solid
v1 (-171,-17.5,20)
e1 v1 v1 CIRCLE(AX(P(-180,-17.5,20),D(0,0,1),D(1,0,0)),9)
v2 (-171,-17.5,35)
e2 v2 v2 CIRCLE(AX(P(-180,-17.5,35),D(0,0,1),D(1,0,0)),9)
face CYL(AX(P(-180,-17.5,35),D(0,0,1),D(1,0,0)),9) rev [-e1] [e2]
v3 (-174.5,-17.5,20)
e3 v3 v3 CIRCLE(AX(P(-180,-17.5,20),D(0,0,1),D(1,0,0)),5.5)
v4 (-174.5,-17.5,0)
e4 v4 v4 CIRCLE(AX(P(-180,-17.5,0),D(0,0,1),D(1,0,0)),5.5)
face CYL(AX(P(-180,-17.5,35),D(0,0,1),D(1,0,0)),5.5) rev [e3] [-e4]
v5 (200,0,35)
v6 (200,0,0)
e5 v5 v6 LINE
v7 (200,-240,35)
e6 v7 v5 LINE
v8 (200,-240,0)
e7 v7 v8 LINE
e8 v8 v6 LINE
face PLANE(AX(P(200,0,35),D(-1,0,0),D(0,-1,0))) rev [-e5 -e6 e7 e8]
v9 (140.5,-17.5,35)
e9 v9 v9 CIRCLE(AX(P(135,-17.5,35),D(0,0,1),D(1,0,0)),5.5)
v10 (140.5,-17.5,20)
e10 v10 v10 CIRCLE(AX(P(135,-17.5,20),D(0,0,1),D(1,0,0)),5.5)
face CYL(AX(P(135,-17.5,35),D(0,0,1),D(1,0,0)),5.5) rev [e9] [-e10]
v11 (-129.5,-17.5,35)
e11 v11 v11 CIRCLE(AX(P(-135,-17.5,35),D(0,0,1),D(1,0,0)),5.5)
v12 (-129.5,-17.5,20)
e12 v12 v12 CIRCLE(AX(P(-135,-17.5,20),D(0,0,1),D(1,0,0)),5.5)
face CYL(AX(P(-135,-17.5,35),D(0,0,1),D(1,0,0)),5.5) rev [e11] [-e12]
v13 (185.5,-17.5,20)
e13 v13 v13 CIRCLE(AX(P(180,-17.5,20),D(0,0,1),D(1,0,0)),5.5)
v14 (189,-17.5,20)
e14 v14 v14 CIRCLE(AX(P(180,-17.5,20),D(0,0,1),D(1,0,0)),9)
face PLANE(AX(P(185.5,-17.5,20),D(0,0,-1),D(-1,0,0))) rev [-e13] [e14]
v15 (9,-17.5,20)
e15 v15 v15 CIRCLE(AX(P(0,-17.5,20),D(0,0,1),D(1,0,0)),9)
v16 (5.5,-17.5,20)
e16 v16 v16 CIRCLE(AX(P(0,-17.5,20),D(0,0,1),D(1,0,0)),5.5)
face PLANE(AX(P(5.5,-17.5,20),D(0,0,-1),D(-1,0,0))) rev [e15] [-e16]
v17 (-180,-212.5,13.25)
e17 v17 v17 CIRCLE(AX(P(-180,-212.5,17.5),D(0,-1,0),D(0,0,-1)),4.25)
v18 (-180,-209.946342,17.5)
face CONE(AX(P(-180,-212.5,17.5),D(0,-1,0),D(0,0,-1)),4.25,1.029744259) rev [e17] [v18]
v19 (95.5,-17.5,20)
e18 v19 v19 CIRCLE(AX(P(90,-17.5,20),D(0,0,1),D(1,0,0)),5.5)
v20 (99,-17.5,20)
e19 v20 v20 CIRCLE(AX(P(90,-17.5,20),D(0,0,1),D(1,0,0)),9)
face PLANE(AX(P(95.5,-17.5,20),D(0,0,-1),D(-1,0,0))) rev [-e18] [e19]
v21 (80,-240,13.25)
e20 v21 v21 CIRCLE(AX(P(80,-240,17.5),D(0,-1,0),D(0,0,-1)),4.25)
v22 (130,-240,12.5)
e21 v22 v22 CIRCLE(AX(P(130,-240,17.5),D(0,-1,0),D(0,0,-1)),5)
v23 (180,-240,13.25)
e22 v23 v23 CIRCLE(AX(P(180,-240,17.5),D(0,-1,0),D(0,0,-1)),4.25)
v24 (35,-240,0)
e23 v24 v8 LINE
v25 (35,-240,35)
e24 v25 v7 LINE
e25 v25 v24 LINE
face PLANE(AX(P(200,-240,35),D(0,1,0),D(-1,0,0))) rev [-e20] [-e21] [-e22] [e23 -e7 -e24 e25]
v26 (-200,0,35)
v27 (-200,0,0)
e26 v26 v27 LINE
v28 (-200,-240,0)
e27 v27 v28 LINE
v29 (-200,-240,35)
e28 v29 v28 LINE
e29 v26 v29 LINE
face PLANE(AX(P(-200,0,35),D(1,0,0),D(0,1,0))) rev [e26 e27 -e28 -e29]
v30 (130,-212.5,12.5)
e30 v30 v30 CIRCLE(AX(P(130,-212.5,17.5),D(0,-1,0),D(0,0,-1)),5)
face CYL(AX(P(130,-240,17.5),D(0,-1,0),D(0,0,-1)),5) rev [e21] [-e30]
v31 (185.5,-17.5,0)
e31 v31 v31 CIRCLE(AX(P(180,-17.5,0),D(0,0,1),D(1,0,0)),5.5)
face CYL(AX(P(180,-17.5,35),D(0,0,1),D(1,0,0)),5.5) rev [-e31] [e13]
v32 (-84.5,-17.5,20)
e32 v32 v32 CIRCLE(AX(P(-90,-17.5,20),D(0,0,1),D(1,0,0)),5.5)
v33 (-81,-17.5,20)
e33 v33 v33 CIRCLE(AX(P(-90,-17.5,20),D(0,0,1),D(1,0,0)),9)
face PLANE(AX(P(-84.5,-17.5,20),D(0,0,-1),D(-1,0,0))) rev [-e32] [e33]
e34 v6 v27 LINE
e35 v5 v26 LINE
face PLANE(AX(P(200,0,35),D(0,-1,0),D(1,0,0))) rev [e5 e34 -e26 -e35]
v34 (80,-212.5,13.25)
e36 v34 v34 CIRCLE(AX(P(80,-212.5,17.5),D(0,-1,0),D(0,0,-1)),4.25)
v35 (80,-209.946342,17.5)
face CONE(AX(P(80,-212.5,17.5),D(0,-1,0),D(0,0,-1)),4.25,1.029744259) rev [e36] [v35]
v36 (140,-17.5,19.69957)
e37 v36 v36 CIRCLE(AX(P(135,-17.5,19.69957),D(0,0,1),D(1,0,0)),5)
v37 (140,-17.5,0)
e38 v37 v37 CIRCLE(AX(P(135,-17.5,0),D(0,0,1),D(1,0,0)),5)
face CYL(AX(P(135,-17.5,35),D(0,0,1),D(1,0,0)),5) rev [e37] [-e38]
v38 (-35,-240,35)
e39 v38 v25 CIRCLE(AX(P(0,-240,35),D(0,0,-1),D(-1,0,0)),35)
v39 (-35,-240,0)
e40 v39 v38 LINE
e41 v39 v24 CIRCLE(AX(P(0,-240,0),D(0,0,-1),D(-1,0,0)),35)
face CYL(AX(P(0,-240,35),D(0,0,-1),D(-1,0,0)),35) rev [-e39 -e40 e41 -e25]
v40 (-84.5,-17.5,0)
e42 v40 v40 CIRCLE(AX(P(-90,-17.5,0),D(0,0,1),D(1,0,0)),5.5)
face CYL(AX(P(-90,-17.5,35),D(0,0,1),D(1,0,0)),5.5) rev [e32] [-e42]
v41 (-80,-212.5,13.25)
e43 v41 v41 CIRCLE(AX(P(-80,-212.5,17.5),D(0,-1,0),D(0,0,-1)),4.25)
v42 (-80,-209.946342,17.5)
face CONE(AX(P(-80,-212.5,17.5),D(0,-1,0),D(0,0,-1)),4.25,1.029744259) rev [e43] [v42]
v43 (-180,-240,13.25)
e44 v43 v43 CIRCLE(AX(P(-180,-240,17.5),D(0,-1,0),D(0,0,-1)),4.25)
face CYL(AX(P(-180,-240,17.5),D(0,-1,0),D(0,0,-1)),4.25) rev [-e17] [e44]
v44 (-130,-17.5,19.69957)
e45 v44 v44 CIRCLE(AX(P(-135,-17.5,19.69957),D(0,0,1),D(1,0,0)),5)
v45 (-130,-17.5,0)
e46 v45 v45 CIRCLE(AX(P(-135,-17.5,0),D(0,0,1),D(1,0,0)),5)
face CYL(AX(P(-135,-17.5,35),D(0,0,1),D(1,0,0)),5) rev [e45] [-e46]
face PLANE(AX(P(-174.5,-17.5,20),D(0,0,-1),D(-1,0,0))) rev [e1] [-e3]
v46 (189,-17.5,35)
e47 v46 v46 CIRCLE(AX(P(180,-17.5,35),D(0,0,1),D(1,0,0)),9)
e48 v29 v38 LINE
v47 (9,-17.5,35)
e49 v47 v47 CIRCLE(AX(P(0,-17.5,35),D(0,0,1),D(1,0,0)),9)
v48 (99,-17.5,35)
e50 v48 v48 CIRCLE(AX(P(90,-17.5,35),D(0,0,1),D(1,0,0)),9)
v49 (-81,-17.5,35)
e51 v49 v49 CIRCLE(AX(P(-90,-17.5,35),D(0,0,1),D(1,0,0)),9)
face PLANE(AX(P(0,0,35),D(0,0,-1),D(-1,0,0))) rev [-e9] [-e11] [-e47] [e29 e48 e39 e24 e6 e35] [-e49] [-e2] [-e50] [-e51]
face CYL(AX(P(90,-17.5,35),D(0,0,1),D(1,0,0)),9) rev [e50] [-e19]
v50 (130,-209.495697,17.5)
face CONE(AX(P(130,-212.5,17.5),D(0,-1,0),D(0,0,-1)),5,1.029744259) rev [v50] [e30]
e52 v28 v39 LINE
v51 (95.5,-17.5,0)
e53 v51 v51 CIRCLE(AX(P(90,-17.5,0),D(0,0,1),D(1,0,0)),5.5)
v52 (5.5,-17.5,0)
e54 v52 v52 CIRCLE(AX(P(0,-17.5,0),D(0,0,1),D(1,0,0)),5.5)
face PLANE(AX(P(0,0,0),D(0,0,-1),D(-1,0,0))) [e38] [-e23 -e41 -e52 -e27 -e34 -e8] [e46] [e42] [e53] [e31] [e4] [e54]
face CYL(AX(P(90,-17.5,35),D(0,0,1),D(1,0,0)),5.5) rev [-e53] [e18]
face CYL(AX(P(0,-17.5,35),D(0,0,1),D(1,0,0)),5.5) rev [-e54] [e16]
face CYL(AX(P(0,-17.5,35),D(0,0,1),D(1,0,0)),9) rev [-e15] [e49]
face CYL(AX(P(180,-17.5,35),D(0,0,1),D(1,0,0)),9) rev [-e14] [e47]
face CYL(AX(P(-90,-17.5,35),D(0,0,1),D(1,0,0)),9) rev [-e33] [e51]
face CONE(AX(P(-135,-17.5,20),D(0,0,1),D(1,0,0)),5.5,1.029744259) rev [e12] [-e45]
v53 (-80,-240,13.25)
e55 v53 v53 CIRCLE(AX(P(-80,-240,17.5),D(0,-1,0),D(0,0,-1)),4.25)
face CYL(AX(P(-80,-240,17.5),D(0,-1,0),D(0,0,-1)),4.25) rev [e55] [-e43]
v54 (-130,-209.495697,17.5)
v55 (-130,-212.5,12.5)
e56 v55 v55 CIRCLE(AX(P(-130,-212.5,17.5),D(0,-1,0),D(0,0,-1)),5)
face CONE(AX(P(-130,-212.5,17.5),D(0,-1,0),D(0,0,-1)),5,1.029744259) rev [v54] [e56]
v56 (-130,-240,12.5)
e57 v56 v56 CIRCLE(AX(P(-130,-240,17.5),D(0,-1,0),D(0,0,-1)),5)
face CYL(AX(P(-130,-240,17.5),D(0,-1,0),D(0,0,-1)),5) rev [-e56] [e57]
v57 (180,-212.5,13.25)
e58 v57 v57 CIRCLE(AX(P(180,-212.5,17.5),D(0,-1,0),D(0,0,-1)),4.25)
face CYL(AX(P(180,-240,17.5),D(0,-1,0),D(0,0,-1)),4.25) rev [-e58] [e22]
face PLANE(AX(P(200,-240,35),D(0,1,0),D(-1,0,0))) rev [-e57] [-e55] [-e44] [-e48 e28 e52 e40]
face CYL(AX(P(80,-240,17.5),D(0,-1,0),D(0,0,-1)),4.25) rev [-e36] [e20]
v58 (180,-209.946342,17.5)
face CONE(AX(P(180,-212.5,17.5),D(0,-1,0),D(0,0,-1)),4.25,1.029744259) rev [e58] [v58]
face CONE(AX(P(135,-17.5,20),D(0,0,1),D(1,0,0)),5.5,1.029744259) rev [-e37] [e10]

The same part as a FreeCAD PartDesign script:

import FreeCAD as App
import Part
import Sketcher

doc = App.newDocument("Part")
body = doc.addObject("PartDesign::Body", "Body")

sketch1 = doc.addObject("Sketcher::SketchObject", "Sketch")
body.addObject(sketch1)
sketch1.AttachmentSupport = (doc.XY_Plane, [""])
sketch1.MapMode = "FlatFace"
sketch1.addGeometry(Part.LineSegment(App.Vector(-200, 0, 0), App.Vector(-200, -240, 0)), False)
sketch1.addGeometry(Part.LineSegment(App.Vector(-200, -240, 0), App.Vector(200, -240, 0)), False)
sketch1.addGeometry(Part.LineSegment(App.Vector(200, -240, 0), App.Vector(200, 0, 0)), False)
sketch1.addGeometry(Part.LineSegment(App.Vector(200, 0, 0), App.Vector(-200, 0, 0)), False)
sketch1.addConstraint(Sketcher.Constraint("Coincident", 0, 2, 1, 1))
sketch1.addConstraint(Sketcher.Constraint("Coincident", 1, 2, 2, 1))
sketch1.addConstraint(Sketcher.Constraint("Coincident", 2, 2, 3, 1))
sketch1.addConstraint(Sketcher.Constraint("Coincident", 3, 2, 0, 1))
sketch1.addConstraint(Sketcher.Constraint("Vertical", 0))
sketch1.addConstraint(Sketcher.Constraint("Horizontal", 1))
sketch1.addConstraint(Sketcher.Constraint("Vertical", 2))
sketch1.addConstraint(Sketcher.Constraint("Horizontal", 3))
sketch1.addConstraint(Sketcher.Constraint("Symmetric", 2, 2, 3, 2, -1, 1))
sketch1.addConstraint(Sketcher.Constraint("DistanceX", 1, 1, 1, 2, 400.0))
sketch1.addConstraint(Sketcher.Constraint("DistanceY", 0, 2, 0, 1, 240.0))
pad1 = doc.addObject("PartDesign::Pad", "Pad")
body.addObject(pad1)
pad1.Profile = sketch1
pad1.Length = 35

sketch2 = doc.addObject("Sketcher::SketchObject", "Sketch001")
body.addObject(sketch2)
sketch2.AttachmentSupport = (doc.XY_Plane, [""])
sketch2.MapMode = "FlatFace"
sketch2.addGeometry(Part.Circle(App.Vector(0, -240, 0), App.Vector(0, 0, 1), 35), False)
sketch2.addConstraint(Sketcher.Constraint("PointOnObject", 0, 3, -2))
sketch2.addConstraint(Sketcher.Constraint("Diameter", 0, 70.0))
sketch2.addConstraint(Sketcher.Constraint("DistanceY", 0, 3, -1, 1, 240.0))
pocket1 = doc.addObject("PartDesign::Pocket", "Pocket")
body.addObject(pocket1)
pocket1.Profile = sketch2
pocket1.Type = "ThroughAll"
pocket1.Reversed = True

sketch3 = doc.addObject("Sketcher::SketchObject", "Sketch002")
body.addObject(sketch3)
sketch3.AttachmentSupport = (doc.XZ_Plane, [""])
sketch3.MapMode = "FlatFace"
sketch3.AttachmentOffset = App.Placement(App.Vector(0, 0, 240), App.Rotation())
sketch3.addGeometry(Part.Circle(App.Vector(180, 17.5, 0), App.Vector(0, 0, 1), 4.2), False)
sketch3.addGeometry(Part.Circle(App.Vector(80, 17.5, 0), App.Vector(0, 0, 1), 4.2), False)
sketch3.addGeometry(Part.Circle(App.Vector(-80, 17.5, 0), App.Vector(0, 0, 1), 4.2), False)
sketch3.addGeometry(Part.Circle(App.Vector(-180, 17.5, 0), App.Vector(0, 0, 1), 4.2), False)
sketch3.addConstraint(Sketcher.Constraint("Equal", 0, 1))
sketch3.addConstraint(Sketcher.Constraint("Equal", 1, 2))
sketch3.addConstraint(Sketcher.Constraint("Equal", 2, 3))
sketch3.addConstraint(Sketcher.Constraint("Symmetric", 1, 3, 2, 3, -2))
sketch3.addConstraint(Sketcher.Constraint("Symmetric", 0, 3, 3, 3, -2))
sketch3.addConstraint(Sketcher.Constraint("Horizontal", 0, 3, 1, 3))
sketch3.addConstraint(Sketcher.Constraint("Diameter", 0, 8.5))
sketch3.addConstraint(Sketcher.Constraint("DistanceX", -1, 1, 0, 3, 180.0))
sketch3.addConstraint(Sketcher.Constraint("DistanceX", -1, 1, 1, 3, 80.0))
sketch3.addConstraint(Sketcher.Constraint("DistanceY", -1, 1, 0, 3, 17.5))
doc.recompute()
hole = doc.addObject("PartDesign::Hole", "Hole")
body.addObject(hole)
hole.Profile = sketch3
hole.ThreadType = "None"
hole.Diameter = 8.5
hole.DepthType = "Dimension"
hole.Depth = 27.5
hole.DrillPoint = "Angled"
hole.DrillPointAngle = 118

sketch4 = doc.addObject("Sketcher::SketchObject", "Sketch003")
body.addObject(sketch4)
sketch4.AttachmentSupport = (doc.XZ_Plane, [""])
sketch4.MapMode = "FlatFace"
sketch4.AttachmentOffset = App.Placement(App.Vector(0, 0, 240), App.Rotation())
sketch4.addGeometry(Part.Circle(App.Vector(130, 18, 0), App.Vector(0, 0, 1), 5), False)
sketch4.addGeometry(Part.Circle(App.Vector(-130, 18, 0), App.Vector(0, 0, 1), 5), False)
sketch4.addConstraint(Sketcher.Constraint("Equal", 0, 1))
sketch4.addConstraint(Sketcher.Constraint("Symmetric", 0, 3, 1, 3, -2))
sketch4.addConstraint(Sketcher.Constraint("Diameter", 0, 10.0))
sketch4.addConstraint(Sketcher.Constraint("DistanceX", -1, 1, 0, 3, 130.0))
sketch4.addConstraint(Sketcher.Constraint("DistanceY", -1, 1, 0, 3, 17.5))
doc.recompute()
hole2 = doc.addObject("PartDesign::Hole", "Hole001")
body.addObject(hole2)
hole2.Profile = sketch4
hole2.ThreadType = "None"
hole2.Diameter = 10
hole2.DepthType = "Dimension"
hole2.Depth = 27.5
hole2.DrillPoint = "Angled"
hole2.DrillPointAngle = 118

sketch5 = doc.addObject("Sketcher::SketchObject", "Sketch004")
body.addObject(sketch5)
sketch5.AttachmentSupport = (doc.XY_Plane, [""])
sketch5.MapMode = "FlatFace"
sketch5.AttachmentOffset = App.Placement(App.Vector(0, 0, 35), App.Rotation())
sketch5.addGeometry(Part.Circle(App.Vector(180, -18, 0), App.Vector(0, 0, 1), 6), False)
sketch5.addGeometry(Part.Circle(App.Vector(90, -18, 0), App.Vector(0, 0, 1), 6), False)
sketch5.addGeometry(Part.Circle(App.Vector(0, -18, 0), App.Vector(0, 0, 1), 6), False)
sketch5.addGeometry(Part.Circle(App.Vector(-90, -18, 0), App.Vector(0, 0, 1), 6), False)
sketch5.addGeometry(Part.Circle(App.Vector(-180, -18, 0), App.Vector(0, 0, 1), 6), False)
sketch5.addConstraint(Sketcher.Constraint("Equal", 0, 1))
sketch5.addConstraint(Sketcher.Constraint("Equal", 1, 2))
sketch5.addConstraint(Sketcher.Constraint("Equal", 2, 3))
sketch5.addConstraint(Sketcher.Constraint("Equal", 3, 4))
sketch5.addConstraint(Sketcher.Constraint("Symmetric", 1, 3, 3, 3, -2))
sketch5.addConstraint(Sketcher.Constraint("Symmetric", 0, 3, 4, 3, -2))
sketch5.addConstraint(Sketcher.Constraint("PointOnObject", 2, 3, -2))
sketch5.addConstraint(Sketcher.Constraint("Horizontal", 0, 3, 1, 3))
sketch5.addConstraint(Sketcher.Constraint("Horizontal", 1, 3, 2, 3))
sketch5.addConstraint(Sketcher.Constraint("Diameter", 0, 11.0))
sketch5.addConstraint(Sketcher.Constraint("DistanceX", -1, 1, 0, 3, 180.0))
sketch5.addConstraint(Sketcher.Constraint("DistanceX", -1, 1, 1, 3, 90.0))
sketch5.addConstraint(Sketcher.Constraint("DistanceY", 0, 3, -1, 1, 17.5))
doc.recompute()
hole3 = doc.addObject("PartDesign::Hole", "Hole002")
body.addObject(hole3)
hole3.Profile = sketch5
hole3.ThreadType = "None"
hole3.Diameter = 11
hole3.DepthType = "ThroughAll"
hole3.HoleCutType = "Counterbore"
hole3.HoleCutDiameter = 18
hole3.HoleCutDepth = 15

sketch6 = doc.addObject("Sketcher::SketchObject", "Sketch005")
body.addObject(sketch6)
sketch6.AttachmentSupport = (doc.XY_Plane, [""])
sketch6.MapMode = "FlatFace"
sketch6.AttachmentOffset = App.Placement(App.Vector(0, 0, 35), App.Rotation())
sketch6.addGeometry(Part.Circle(App.Vector(135, -18, 0), App.Vector(0, 0, 1), 5), False)
sketch6.addGeometry(Part.Circle(App.Vector(-135, -18, 0), App.Vector(0, 0, 1), 5), False)
sketch6.addConstraint(Sketcher.Constraint("Equal", 0, 1))
sketch6.addConstraint(Sketcher.Constraint("Symmetric", 0, 3, 1, 3, -2))
sketch6.addConstraint(Sketcher.Constraint("Diameter", 0, 10.0))
sketch6.addConstraint(Sketcher.Constraint("DistanceX", -1, 1, 0, 3, 135.0))
sketch6.addConstraint(Sketcher.Constraint("DistanceY", 0, 3, -1, 1, 17.5))
doc.recompute()
hole4 = doc.addObject("PartDesign::Hole", "Hole003")
body.addObject(hole4)
hole4.Profile = sketch6
hole4.ThreadType = "None"
hole4.Diameter = 10
hole4.DepthType = "ThroughAll"

sketch7 = doc.addObject("Sketcher::SketchObject", "Sketch006")
body.addObject(sketch7)
sketch7.AttachmentSupport = (doc.XY_Plane, [""])
sketch7.MapMode = "FlatFace"
sketch7.AttachmentOffset = App.Placement(App.Vector(0, 0, 35), App.Rotation())
sketch7.addGeometry(Part.Circle(App.Vector(135, -18, 0), App.Vector(0, 0, 1), 6), False)
sketch7.addGeometry(Part.Circle(App.Vector(-135, -18, 0), App.Vector(0, 0, 1), 6), False)
sketch7.addConstraint(Sketcher.Constraint("Equal", 0, 1))
sketch7.addConstraint(Sketcher.Constraint("Symmetric", 0, 3, 1, 3, -2))
sketch7.addConstraint(Sketcher.Constraint("Diameter", 0, 11.0))
sketch7.addConstraint(Sketcher.Constraint("DistanceX", -1, 1, 0, 3, 135.0))
sketch7.addConstraint(Sketcher.Constraint("DistanceY", 0, 3, -1, 1, 17.5))
doc.recompute()
hole5 = doc.addObject("PartDesign::Hole", "Hole004")
body.addObject(hole5)
hole5.Profile = sketch7
hole5.ThreadType = "None"
hole5.Diameter = 11
hole5.DepthType = "Dimension"
hole5.Depth = 15
hole5.DrillPoint = "Angled"
hole5.DrillPointAngle = 118

doc.recompute()
